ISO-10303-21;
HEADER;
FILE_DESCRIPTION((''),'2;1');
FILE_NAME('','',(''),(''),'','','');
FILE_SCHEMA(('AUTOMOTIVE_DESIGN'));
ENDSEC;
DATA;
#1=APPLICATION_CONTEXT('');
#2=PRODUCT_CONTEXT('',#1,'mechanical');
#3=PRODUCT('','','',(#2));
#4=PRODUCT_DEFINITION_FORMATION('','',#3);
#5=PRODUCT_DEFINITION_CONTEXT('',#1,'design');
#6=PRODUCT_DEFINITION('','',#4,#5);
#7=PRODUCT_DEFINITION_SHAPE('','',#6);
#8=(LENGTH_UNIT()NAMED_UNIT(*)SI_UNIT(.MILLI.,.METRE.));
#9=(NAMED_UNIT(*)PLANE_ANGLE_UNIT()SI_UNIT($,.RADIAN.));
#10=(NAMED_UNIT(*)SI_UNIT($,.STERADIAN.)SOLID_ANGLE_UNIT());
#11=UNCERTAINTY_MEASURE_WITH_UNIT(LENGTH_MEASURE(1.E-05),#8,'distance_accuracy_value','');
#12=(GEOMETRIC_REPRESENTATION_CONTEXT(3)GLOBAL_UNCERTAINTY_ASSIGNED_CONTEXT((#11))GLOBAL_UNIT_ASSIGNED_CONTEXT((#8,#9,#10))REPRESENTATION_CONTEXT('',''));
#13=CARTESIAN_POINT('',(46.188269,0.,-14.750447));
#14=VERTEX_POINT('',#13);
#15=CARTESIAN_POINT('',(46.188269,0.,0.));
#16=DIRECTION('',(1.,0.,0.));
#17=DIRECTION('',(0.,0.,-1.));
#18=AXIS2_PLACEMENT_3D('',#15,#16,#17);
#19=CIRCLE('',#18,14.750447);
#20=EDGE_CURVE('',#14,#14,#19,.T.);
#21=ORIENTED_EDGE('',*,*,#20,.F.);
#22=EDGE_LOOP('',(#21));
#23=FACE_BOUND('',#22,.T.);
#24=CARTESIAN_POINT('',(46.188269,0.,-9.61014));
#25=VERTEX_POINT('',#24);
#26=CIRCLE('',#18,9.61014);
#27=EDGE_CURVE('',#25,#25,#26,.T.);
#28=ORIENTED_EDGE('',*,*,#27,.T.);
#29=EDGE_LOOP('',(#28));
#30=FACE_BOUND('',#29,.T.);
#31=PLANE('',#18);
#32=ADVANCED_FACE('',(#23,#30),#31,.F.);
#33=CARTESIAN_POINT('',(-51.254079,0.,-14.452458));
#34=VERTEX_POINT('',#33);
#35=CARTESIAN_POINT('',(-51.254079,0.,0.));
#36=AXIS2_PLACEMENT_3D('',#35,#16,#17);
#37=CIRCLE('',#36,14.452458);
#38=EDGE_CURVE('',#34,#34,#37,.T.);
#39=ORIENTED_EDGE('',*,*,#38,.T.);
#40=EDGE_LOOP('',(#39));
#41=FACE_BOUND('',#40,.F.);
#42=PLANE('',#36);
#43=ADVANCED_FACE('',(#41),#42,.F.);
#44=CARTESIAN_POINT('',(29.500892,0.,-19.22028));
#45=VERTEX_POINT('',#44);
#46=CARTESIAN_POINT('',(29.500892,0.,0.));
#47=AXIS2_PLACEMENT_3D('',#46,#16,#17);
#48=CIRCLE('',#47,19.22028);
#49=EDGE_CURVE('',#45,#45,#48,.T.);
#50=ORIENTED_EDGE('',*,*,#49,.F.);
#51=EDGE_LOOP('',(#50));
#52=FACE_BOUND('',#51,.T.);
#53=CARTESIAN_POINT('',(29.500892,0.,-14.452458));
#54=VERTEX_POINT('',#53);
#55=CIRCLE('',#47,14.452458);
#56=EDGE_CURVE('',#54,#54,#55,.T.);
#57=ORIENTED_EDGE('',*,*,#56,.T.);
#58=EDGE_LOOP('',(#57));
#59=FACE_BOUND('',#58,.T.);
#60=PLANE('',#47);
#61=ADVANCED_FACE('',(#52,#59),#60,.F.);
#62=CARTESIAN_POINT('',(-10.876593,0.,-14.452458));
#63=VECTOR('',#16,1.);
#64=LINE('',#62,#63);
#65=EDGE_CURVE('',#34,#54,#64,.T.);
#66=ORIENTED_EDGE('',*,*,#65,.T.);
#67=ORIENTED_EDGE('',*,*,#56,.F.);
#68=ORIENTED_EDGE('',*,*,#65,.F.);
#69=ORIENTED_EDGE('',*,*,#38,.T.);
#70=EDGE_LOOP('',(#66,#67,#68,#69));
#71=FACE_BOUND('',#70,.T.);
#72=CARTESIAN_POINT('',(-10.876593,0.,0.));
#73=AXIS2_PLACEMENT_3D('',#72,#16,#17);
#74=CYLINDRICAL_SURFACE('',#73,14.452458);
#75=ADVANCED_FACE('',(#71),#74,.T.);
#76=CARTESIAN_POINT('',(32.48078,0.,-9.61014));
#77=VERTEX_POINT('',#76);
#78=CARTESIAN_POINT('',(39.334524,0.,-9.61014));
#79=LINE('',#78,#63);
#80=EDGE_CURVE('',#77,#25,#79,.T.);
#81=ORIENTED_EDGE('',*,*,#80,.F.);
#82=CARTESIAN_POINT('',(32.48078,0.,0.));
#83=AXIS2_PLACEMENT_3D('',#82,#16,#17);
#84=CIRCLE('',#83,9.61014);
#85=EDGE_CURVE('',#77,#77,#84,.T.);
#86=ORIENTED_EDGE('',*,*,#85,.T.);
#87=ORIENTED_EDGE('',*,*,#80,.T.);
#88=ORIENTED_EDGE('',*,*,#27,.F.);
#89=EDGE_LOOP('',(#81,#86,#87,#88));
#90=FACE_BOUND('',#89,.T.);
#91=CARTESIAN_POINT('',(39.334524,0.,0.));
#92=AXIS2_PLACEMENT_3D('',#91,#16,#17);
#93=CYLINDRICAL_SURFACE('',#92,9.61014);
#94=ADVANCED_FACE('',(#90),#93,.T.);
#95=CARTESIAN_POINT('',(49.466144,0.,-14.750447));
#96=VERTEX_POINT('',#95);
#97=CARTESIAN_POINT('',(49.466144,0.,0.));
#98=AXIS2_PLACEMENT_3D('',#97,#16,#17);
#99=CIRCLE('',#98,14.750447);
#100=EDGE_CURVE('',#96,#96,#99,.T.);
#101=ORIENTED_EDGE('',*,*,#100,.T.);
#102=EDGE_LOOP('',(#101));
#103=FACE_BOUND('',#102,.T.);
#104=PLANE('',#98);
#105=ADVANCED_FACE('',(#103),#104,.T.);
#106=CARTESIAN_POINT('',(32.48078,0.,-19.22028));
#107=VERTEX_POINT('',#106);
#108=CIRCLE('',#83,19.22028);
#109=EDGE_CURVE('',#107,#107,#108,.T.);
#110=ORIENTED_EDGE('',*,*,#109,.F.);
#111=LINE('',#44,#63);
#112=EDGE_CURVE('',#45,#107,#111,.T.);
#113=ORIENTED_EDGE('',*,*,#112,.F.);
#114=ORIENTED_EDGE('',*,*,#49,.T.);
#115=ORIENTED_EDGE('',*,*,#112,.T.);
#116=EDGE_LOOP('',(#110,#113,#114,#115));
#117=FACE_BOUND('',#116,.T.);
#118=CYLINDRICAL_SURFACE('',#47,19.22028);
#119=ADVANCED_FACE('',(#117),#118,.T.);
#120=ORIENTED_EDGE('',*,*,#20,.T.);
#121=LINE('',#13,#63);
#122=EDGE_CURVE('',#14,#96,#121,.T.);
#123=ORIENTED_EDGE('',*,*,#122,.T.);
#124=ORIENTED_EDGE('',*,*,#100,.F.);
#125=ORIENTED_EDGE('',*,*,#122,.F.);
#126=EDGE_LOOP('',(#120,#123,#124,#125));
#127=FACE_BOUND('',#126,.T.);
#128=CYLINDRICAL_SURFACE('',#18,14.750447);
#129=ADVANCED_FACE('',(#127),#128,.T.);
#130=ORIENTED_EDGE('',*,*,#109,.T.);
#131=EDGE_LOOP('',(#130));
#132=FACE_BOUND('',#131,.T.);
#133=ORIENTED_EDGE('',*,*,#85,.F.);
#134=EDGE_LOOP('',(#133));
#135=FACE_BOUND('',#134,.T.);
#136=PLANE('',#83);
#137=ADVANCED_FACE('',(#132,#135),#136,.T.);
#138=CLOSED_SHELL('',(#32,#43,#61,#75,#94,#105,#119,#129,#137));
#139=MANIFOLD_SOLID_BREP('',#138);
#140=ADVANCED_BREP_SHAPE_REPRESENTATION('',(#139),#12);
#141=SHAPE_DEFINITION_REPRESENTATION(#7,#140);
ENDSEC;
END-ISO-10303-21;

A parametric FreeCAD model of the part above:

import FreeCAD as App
import Part
import Sketcher
Q = App.Units.Quantity


def add_polygon(sketch, points):
    """Adds a closed chain of lines whose ends are joined by coincident constraints."""
    first, n = sketch.GeometryCount, len(points)
    for a, b in zip(points, points[1:] + points[:1]):
        sketch.addGeometry(Part.LineSegment(App.Vector(*a, 0), App.Vector(*b, 0)), False)
    for i in range(n):
        sketch.addConstraint(Sketcher.Constraint("Coincident", first + i, 2, first + (i + 1) % n, 1))

doc = App.newDocument("Part")
body = doc.addObject("PartDesign::Body", "Body")

# Sketch on XZ plane
sketch1 = body.newObject("Sketcher::SketchObject", "Sketch")
sketch1.AttachmentSupport = (doc.getObject("XZ_Plane"), [""])
sketch1.MapMode = "FlatFace"
add_polygon(sketch1, [(-51.254079, 0), (-51.254079, -14.452458), (29.500892, -14.452458), (29.500892, -19.22028), (32.48078, -19.22028), (32.48078, -9.61014), (46.188269, -9.61014), (46.188269, -14.750447), (49.466144, -14.750447), (49.466144, 0)])  # lines 0-9
sketch1.addConstraint(Sketcher.Constraint("Vertical", 0))
sketch1.addConstraint(Sketcher.Constraint("Horizontal", 1))
sketch1.addConstraint(Sketcher.Constraint("Vertical", 2))
sketch1.addConstraint(Sketcher.Constraint("Horizontal", 3))
sketch1.addConstraint(Sketcher.Constraint("Vertical", 4))
sketch1.addConstraint(Sketcher.Constraint("Horizontal", 5))
sketch1.addConstraint(Sketcher.Constraint("Vertical", 6))
sketch1.addConstraint(Sketcher.Constraint("Horizontal", 7))
sketch1.addConstraint(Sketcher.Constraint("Vertical", 8))
sketch1.addConstraint(Sketcher.Constraint("Horizontal", 9))
sketch1.addConstraint(Sketcher.Constraint("PointOnObject", 8, 2, -1))
sketch1.addConstraint(Sketcher.Constraint("DistanceX", 1, 1, 1, 2, Q("80.754971 mm")))
sketch1.addConstraint(Sketcher.Constraint("DistanceX", 5, 1, 5, 2, Q("13.707489 mm")))
sketch1.addConstraint(Sketcher.Constraint("DistanceY", 0, 2, 0, 1, Q("14.452458 mm")))
sketch1.addConstraint(Sketcher.Constraint("DistanceY", 2, 2, 2, 1, Q("4.767821 mm")))
sketch1.addConstraint(Sketcher.Constraint("DistanceY", 4, 1, 4, 2, Q("9.61014 mm")))
sketch1.addConstraint(Sketcher.Constraint("DistanceX", 3, 1, 3, 2, Q("2.979888 mm")))
sketch1.addConstraint(Sketcher.Constraint("DistanceX", 7, 1, 7, 2, Q("3.277875 mm")))
sketch1.addConstraint(Sketcher.Constraint("DistanceY", 6, 2, 6, 1, Q("5.140307 mm")))
sketch1.addConstraint(Sketcher.Constraint("DistanceX", 0, 2, -1, 1, Q("51.254079 mm")))
revolution = body.newObject("PartDesign::Revolution", "Revolution")
revolution.Profile = sketch1
revolution.ReferenceAxis = (sketch1, ["H_Axis"])
revolution.Angle = 360

doc.recompute()
